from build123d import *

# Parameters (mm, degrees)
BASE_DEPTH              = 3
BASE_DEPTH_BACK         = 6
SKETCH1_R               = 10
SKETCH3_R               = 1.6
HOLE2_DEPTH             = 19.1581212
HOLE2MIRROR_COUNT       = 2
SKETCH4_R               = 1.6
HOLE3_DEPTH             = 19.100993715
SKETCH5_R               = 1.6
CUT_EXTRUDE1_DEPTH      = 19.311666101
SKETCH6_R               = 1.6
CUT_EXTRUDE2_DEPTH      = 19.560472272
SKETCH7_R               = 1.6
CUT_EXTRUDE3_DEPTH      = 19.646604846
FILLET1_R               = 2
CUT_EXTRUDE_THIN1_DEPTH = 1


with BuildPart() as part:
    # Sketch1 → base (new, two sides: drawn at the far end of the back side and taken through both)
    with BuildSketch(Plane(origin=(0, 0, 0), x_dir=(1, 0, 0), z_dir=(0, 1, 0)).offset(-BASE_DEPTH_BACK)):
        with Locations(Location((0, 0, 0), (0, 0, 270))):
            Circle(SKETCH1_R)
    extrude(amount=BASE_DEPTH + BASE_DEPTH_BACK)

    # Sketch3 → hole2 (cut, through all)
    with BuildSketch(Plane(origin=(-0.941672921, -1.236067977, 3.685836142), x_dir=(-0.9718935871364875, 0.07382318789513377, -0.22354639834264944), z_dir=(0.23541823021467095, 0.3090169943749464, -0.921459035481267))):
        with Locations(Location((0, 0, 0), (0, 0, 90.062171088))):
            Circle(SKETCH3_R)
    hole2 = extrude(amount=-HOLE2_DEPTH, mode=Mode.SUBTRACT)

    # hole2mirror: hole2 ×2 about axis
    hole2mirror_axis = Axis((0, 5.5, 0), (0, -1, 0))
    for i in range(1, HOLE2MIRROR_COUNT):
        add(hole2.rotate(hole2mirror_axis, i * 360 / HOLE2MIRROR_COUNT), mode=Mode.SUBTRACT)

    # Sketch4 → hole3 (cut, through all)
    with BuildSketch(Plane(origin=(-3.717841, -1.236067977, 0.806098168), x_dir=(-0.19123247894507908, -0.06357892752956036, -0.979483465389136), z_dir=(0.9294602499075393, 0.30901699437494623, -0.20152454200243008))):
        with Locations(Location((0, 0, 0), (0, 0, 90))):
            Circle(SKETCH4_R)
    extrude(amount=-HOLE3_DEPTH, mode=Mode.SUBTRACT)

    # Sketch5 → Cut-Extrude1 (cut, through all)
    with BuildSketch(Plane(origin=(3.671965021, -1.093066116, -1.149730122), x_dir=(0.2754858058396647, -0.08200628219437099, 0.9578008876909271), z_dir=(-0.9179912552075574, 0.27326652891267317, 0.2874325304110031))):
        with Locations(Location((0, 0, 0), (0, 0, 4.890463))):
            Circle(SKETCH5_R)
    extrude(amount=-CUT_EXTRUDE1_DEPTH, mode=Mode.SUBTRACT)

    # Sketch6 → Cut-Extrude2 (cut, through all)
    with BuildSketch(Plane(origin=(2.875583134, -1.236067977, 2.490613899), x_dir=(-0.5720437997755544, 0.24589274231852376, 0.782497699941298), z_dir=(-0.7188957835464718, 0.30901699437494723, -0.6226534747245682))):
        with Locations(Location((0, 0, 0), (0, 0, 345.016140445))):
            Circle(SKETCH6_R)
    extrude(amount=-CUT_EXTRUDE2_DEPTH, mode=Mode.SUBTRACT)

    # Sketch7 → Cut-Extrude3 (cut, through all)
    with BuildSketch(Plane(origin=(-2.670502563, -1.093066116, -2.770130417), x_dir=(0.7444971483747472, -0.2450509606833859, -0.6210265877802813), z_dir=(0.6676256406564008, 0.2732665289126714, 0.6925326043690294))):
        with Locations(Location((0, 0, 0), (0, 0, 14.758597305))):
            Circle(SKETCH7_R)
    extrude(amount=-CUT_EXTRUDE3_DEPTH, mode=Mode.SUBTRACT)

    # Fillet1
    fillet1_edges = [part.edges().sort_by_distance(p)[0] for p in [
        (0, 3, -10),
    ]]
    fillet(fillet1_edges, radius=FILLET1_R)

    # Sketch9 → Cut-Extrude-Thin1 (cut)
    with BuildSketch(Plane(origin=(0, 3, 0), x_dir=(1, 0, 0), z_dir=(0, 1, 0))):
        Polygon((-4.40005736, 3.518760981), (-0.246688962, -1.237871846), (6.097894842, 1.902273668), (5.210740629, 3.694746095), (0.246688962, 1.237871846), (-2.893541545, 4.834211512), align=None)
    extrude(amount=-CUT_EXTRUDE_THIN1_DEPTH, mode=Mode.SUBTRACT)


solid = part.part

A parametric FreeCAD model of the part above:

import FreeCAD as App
import Part
import Sketcher

V = App.Vector
Q = App.Units.Quantity


def edges_at(feature, points):
    """Names of the edges that pass closest to the given points."""
    edges = feature.Shape.Edges
    near = lambda p: min(range(len(edges)), key=lambda i: edges[i].distToShape(Part.Vertex(*p))[0])
    return sorted({f"Edge{near(p) + 1}" for p in points})

doc = App.newDocument("Part")
body = doc.addObject("PartDesign::Body", "Body")

# Sketch on XZ plane
sketch1 = body.newObject("Sketcher::SketchObject", "Sketch")
sketch1.AttachmentSupport = (doc.getObject("XZ_Plane"), [""])
sketch1.MapMode = "FlatFace"
sketch1.addGeometry(Part.Circle(V(0, 0, 0), V(0, 0, 1), 10), False)
sketch1.addConstraint(Sketcher.Constraint("Coincident", 0, 3, -1, 1))
sketch1.addConstraint(Sketcher.Constraint("Diameter", 0, Q("20 mm")))
pad1 = body.newObject("PartDesign::Pad", "Pad")
pad1.Profile = sketch1
pad1.Type = "TwoLengths"
pad1.Length = 3
pad1.Length2 = 6
pad1.Reversed = True

# Sketch on an angled plane
sketch2 = body.newObject("Sketcher::SketchObject", "Sketch001")
sketch2.Placement = App.Placement(V(-0.941673, -1.236068, 3.685836), App.Rotation(V(-0.971893587, 0.073823188, -0.223546398), V(-0.001054592, 0.948187024, 0.317710959), V(0.23541823, 0.309016994, -0.921459035), "ZXY"))
sketch2.addGeometry(Part.Circle(V(0, 0, 0), V(0, 0, 1), 1.6), False)
sketch2.addConstraint(Sketcher.Constraint("Coincident", 0, 3, -1, 1))
sketch2.addConstraint(Sketcher.Constraint("Diameter", 0, Q("3.2 mm")))
pocket1 = body.newObject("PartDesign::Pocket", "Pocket")
pocket1.Profile = sketch2
pocket1.Type = "ThroughAll"
doc.recompute()

polarpattern = body.newObject("PartDesign::PolarPattern", "PolarPattern")
polarpattern.Originals = [pocket1]
polarpattern.Axis = (doc.getObject("Y_Axis"), [""])
polarpattern.Angle = 360
polarpattern.Occurrences = 2
body.Tip = polarpattern

# Sketch on an angled plane
sketch3 = body.newObject("Sketcher::SketchObject", "Sketch002")
sketch3.Placement = App.Placement(V(-3.717841, -1.236068, 0.806098), App.Rotation(V(-0.191232479, -0.063578928, -0.979483465), V(-0.31548975, 0.948928984, 0), V(0.92946025, 0.309016994, -0.201524542), "ZXY"))
sketch3.addGeometry(Part.Circle(V(0, 0, 0), V(0, 0, 1), 1.6), False)
sketch3.addConstraint(Sketcher.Constraint("Coincident", 0, 3, -1, 1))
sketch3.addConstraint(Sketcher.Constraint("Diameter", 0, Q("3.2 mm")))
pocket2 = body.newObject("PartDesign::Pocket", "Pocket001")
pocket2.Profile = sketch3
pocket2.Type = "ThroughAll"

# Sketch on an angled plane
sketch4 = body.newObject("Sketcher::SketchObject", "Sketch003")
sketch4.Placement = App.Placement(V(3.671965, -1.093066, -1.14973), App.Rotation(V(0.275485806, -0.082006282, 0.957800888), V(0.285306197, 0.958436421, 0), V(-0.917991255, 0.273266529, 0.28743253), "ZXY"))
sketch4.addGeometry(Part.Circle(V(0, 0, 0), V(0, 0, 1), 1.6), False)
sketch4.addConstraint(Sketcher.Constraint("Coincident", 0, 3, -1, 1))
sketch4.addConstraint(Sketcher.Constraint("Diameter", 0, Q("3.2 mm")))
pocket3 = body.newObject("PartDesign::Pocket", "Pocket002")
pocket3.Profile = sketch4
pocket3.Type = "ThroughAll"

# Sketch on an angled plane
sketch5 = body.newObject("Sketcher::SketchObject", "Sketch004")
sketch5.Placement = App.Placement(V(2.875583, -1.236068, 2.490614), App.Rotation(V(-0.5720438, 0.245892742, 0.7824977), V(0.394911057, 0.918719357, 0), V(-0.718895784, 0.309016994, -0.622653475), "ZXY"))
sketch5.addGeometry(Part.Circle(V(0, 0, 0), V(0, 0, 1), 1.6), False)
sketch5.addConstraint(Sketcher.Constraint("Coincident", 0, 3, -1, 1))
sketch5.addConstraint(Sketcher.Constraint("Diameter", 0, Q("3.2 mm")))
pocket4 = body.newObject("PartDesign::Pocket", "Pocket003")
pocket4.Profile = sketch5
pocket4.Type = "ThroughAll"

# Sketch on an angled plane
sketch6 = body.newObject("Sketcher::SketchObject", "Sketch005")
sketch6.Placement = App.Placement(V(-2.670503, -1.093066, -2.77013), App.Rotation(V(0.744497148, -0.245050961, -0.621026588), V(0, 0.930201822, -0.367048456), V(0.667625641, 0.273266529, 0.692532604), "ZXY"))
sketch6.addGeometry(Part.Circle(V(0, 0, 0), V(0, 0, 1), 1.6), False)
sketch6.addConstraint(Sketcher.Constraint("Coincident", 0, 3, -1, 1))
sketch6.addConstraint(Sketcher.Constraint("Diameter", 0, Q("3.2 mm")))
pocket5 = body.newObject("PartDesign::Pocket", "Pocket004")
pocket5.Profile = sketch6
pocket5.Type = "ThroughAll"
doc.recompute()

fillet = body.newObject("PartDesign::Fillet", "Fillet")
fillet.Base = (pocket5, edges_at(pocket5, [(0, 3, -10)]))
fillet.Radius = 2

# Sketch on XZ plane
sketch7 = body.newObject("Sketcher::SketchObject", "Sketch006")
sketch7.AttachmentSupport = (doc.getObject("XZ_Plane"), [""])
sketch7.MapMode = "FlatFace"
sketch7.AttachmentOffset = App.Placement(V(0, 0, -3), App.Rotation())
sketch7.addGeometry(Part.LineSegment(V(-4.4, -3.5, 0), V(-0.2, 1.2, 0)), False)
sketch7.addGeometry(Part.LineSegment(V(-0.2, 1.2, 0), V(6.1, -1.9, 0)), False)
sketch7.addGeometry(Part.LineSegment(V(6.1, -1.9, 0), V(5.2, -3.7, 0)), False)
sketch7.addGeometry(Part.LineSegment(V(5.2, -3.7, 0), V(0.2, -1.2, 0)), False)
sketch7.addGeometry(Part.LineSegment(V(0.2, -1.2, 0), V(-2.9, -4.8, 0)), False)
sketch7.addGeometry(Part.LineSegment(V(-2.9, -4.8, 0), V(-4.4, -3.5, 0)), False)
sketch7.addConstraint(Sketcher.Constraint("Coincident", 0, 2, 1, 1))
sketch7.addConstraint(Sketcher.Constraint("Coincident", 1, 2, 2, 1))
sketch7.addConstraint(Sketcher.Constraint("Coincident", 2, 2, 3, 1))
sketch7.addConstraint(Sketcher.Constraint("Coincident", 3, 2, 4, 1))
sketch7.addConstraint(Sketcher.Constraint("Coincident", 4, 2, 5, 1))
sketch7.addConstraint(Sketcher.Constraint("Coincident", 5, 2, 0, 1))
sketch7.addConstraint(Sketcher.Constraint("Symmetric", 0, 2, 3, 2, -1, 1))
sketch7.addConstraint(Sketcher.Constraint("Perpendicular", 1, 2))
sketch7.addConstraint(Sketcher.Constraint("Perpendicular", 2, 3))
sketch7.addConstraint(Sketcher.Constraint("Parallel", 0, 4))
sketch7.addConstraint(Sketcher.Constraint("Perpendicular", 4, 5))
sketch7.addConstraint(Sketcher.Constraint("Equal", 2, 5))
sketch7.addConstraint(Sketcher.Constraint("Distance", 2, Q("2 mm")))
sketch7.addConstraint(Sketcher.Constraint("DistanceY", 1, 2, 3, 2, Q("0.664402 mm")))
sketch7.addConstraint(Sketcher.Constraint("Distance", 4, Q("4.77438 mm")))
sketch7.addConstraint(Sketcher.Constraint("DistanceX", 0, 2, -1, 1, Q("0.246689 mm")))
sketch7.addConstraint(Sketcher.Constraint("DistanceY", -1, 1, 0, 2, Q("1.237872 mm")))
pocket6 = body.newObject("PartDesign::Pocket", "Pocket005")
pocket6.Profile = sketch7
pocket6.Length = 1
pocket6.Reversed = True

doc.recompute()
